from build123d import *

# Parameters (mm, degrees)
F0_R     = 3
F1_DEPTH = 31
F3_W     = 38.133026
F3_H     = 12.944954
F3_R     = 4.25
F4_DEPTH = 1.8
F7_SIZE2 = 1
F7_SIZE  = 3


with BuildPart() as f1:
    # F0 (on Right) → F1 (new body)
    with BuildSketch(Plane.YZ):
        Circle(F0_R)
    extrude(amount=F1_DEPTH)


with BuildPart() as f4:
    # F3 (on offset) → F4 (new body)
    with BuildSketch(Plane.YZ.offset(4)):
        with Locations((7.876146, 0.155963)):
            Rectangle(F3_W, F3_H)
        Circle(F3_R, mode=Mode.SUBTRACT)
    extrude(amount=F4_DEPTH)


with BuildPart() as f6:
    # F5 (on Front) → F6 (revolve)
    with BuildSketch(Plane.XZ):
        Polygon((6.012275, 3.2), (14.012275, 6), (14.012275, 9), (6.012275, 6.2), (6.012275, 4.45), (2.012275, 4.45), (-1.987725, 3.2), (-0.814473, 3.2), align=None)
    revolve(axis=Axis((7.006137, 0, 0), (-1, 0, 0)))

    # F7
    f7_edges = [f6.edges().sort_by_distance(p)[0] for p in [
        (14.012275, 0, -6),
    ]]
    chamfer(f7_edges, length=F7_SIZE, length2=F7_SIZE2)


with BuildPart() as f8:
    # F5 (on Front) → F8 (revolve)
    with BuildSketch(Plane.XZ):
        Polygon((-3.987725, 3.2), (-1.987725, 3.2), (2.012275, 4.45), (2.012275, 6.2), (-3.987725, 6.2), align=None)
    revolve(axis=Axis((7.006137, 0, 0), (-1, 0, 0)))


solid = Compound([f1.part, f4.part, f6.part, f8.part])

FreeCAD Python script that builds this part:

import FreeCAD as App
import Part
import Sketcher

V = App.Vector


def edges_at(feature, points):
    """Names of the edges that pass closest to the given points."""
    edges = feature.Shape.Edges
    near = lambda p: min(range(len(edges)), key=lambda i: edges[i].distToShape(Part.Vertex(*p))[0])
    return sorted({f"Edge{near(p) + 1}" for p in points})

doc = App.newDocument("Part")
body = doc.addObject("PartDesign::Body", "Body")

sketch1 = body.newObject("Sketcher::SketchObject", "Sketch")
sketch1.AttachmentSupport = (doc.getObject("YZ_Plane"), [""])
sketch1.MapMode = "FlatFace"
sketch1.addGeometry(Part.Circle(V(0, 0, 0), V(0, 0, 1), 3), False)
sketch1.addConstraint([
    Sketcher.Constraint("Coincident", 0, 3, -1, 1),
    Sketcher.Constraint("Diameter", 0, 6.0),
])
pad1 = body.newObject("PartDesign::Pad", "Pad")
pad1.Profile = sketch1
pad1.Length = 31
body2 = doc.addObject("PartDesign::Body", "Body001")

sketch2 = body2.newObject("Sketcher::SketchObject", "Sketch001")
sketch2.AttachmentSupport = (doc.getObject("YZ_Plane001"), [""])
sketch2.MapMode = "FlatFace"
sketch2.AttachmentOffset = App.Placement(V(0, 0, 4), App.Rotation())
sketch2.addGeometry([
    Part.LineSegment(V(-11.190367, 6.62844, 0), V(-11.190367, -6.316514, 0)),
    Part.LineSegment(V(-11.190367, -6.316514, 0), V(26.942659, -6.316514, 0)),
    Part.LineSegment(V(26.942659, -6.316514, 0), V(26.942659, 6.62844, 0)),
    Part.LineSegment(V(26.942659, 6.62844, 0), V(-11.190367, 6.62844, 0)),
    Part.Circle(V(0, 0, 0), V(0, 0, 1), 4.25),
], False)
sketch2.addConstraint([
    Sketcher.Constraint("Coincident", 0, 2, 1, 1),
    Sketcher.Constraint("Coincident", 1, 2, 2, 1),
    Sketcher.Constraint("Coincident", 2, 2, 3, 1),
    Sketcher.Constraint("Coincident", 3, 2, 0, 1),
    Sketcher.Constraint("Vertical", 0),
    Sketcher.Constraint("Horizontal", 1),
    Sketcher.Constraint("Vertical", 2),
    Sketcher.Constraint("Horizontal", 3),
    Sketcher.Constraint("Coincident", 4, 3, -1, 1),
    Sketcher.Constraint("Diameter", 4, 8.5),
    Sketcher.Constraint("DistanceX", 1, 1, 1, 2, 38.133026),
    Sketcher.Constraint("DistanceY", 0, 2, 0, 1, 12.944954),
    Sketcher.Constraint("DistanceX", -1, 1, 1, 2, 26.942659),
    Sketcher.Constraint("DistanceY", -1, 1, 2, 2, 6.62844),
])
pad2 = body2.newObject("PartDesign::Pad", "Pad001")
pad2.Profile = sketch2
pad2.Length = 1.8
body3 = doc.addObject("PartDesign::Body", "Body002")

sketch3 = body3.newObject("Sketcher::SketchObject", "Sketch002")
sketch3.AttachmentSupport = (doc.getObject("XZ_Plane002"), [""])
sketch3.MapMode = "FlatFace"
sketch3.addGeometry([
    Part.LineSegment(V(6.012275, 3.2, 0), V(14.012275, 6, 0)),
    Part.LineSegment(V(14.012275, 6, 0), V(14.012275, 9, 0)),
    Part.LineSegment(V(14.012275, 9, 0), V(6.012275, 6.2, 0)),
    Part.LineSegment(V(6.012275, 6.2, 0), V(6.012275, 4.45, 0)),
    Part.LineSegment(V(6.012275, 4.45, 0), V(2.012275, 4.45, 0)),
    Part.LineSegment(V(2.012275, 4.45, 0), V(-1.987725, 3.2, 0)),
    Part.LineSegment(V(-1.987725, 3.2, 0), V(6.012275, 3.2, 0)),
], False)
sketch3.addConstraint([
    Sketcher.Constraint("Coincident", 0, 2, 1, 1),
    Sketcher.Constraint("Coincident", 1, 2, 2, 1),
    Sketcher.Constraint("Coincident", 2, 2, 3, 1),
    Sketcher.Constraint("Coincident", 3, 2, 4, 1),
    Sketcher.Constraint("Coincident", 4, 2, 5, 1),
    Sketcher.Constraint("Coincident", 5, 2, 6, 1),
    Sketcher.Constraint("Coincident", 6, 2, 0, 1),
    Sketcher.Constraint("Vertical", 1),
    Sketcher.Constraint("Vertical", 3),
    Sketcher.Constraint("Horizontal", 4),
    Sketcher.Constraint("Horizontal", 6),
    Sketcher.Constraint("Parallel", 0, 2),
    Sketcher.Constraint("Vertical", 3, 2, 6, 2),
    Sketcher.Constraint("DistanceX", 4, 2, 4, 1, 4.0),
    Sketcher.Constraint("DistanceX", 6, 1, 6, 2, 8.0),
    Sketcher.Constraint("DistanceY", 1, 1, 1, 2, 3.0),
    Sketcher.Constraint("DistanceY", -1, 1, 0, 2, 6.0),
    Sketcher.Constraint("DistanceX", 2, 2, 0, 2, 8.0),
    Sketcher.Constraint("DistanceY", 3, 2, 3, 1, 1.75),
    Sketcher.Constraint("DistanceY", -1, 1, 2, 2, 6.2),
    Sketcher.Constraint("DistanceX", -1, 1, 0, 2, 14.012275),
])
revolution = body3.newObject("PartDesign::Revolution", "Revolution")
revolution.Profile = sketch3
revolution.ReferenceAxis = (sketch3, ["H_Axis"])
revolution.Angle = 360
doc.recompute()

chamfer = body3.newObject("PartDesign::Chamfer", "Chamfer")
chamfer.Base = (revolution, edges_at(revolution, [(14.012, 0, -6)]))
chamfer.ChamferType = "Two distances"
chamfer.Size = 3
chamfer.Size2 = 1
body4 = doc.addObject("PartDesign::Body", "Body003")

sketch4 = body4.newObject("Sketcher::SketchObject", "Sketch003")
sketch4.AttachmentSupport = (doc.getObject("XZ_Plane003"), [""])
sketch4.MapMode = "FlatFace"
sketch4.addGeometry([
    Part.LineSegment(V(-3.987725, 3.2, 0), V(-1.987725, 3.2, 0)),
    Part.LineSegment(V(-1.987725, 3.2, 0), V(2.012275, 4.45, 0)),
    Part.LineSegment(V(2.012275, 4.45, 0), V(2.012275, 6.2, 0)),
    Part.LineSegment(V(2.012275, 6.2, 0), V(-3.987725, 6.2, 0)),
    Part.LineSegment(V(-3.987725, 6.2, 0), V(-3.987725, 3.2, 0)),
], False)
sketch4.addConstraint([
    Sketcher.Constraint("Coincident", 0, 2, 1, 1),
    Sketcher.Constraint("Coincident", 1, 2, 2, 1),
    Sketcher.Constraint("Coincident", 2, 2, 3, 1),
    Sketcher.Constraint("Coincident", 3, 2, 4, 1),
    Sketcher.Constraint("Coincident", 4, 2, 0, 1),
    Sketcher.Constraint("Horizontal", 0),
    Sketcher.Constraint("Vertical", 2),
    Sketcher.Constraint("Horizontal", 3),
    Sketcher.Constraint("Vertical", 4),
    Sketcher.Constraint("DistanceX", 0, 1, 0, 2, 2.0),
    Sketcher.Constraint("DistanceX", 3, 2, 3, 1, 6.0),
    Sketcher.Constraint("DistanceY", 4, 2, 4, 1, 3.0),
    Sketcher.Constraint("DistanceY", 2, 1, 2, 2, 1.75),
    Sketcher.Constraint("DistanceY", -1, 1, 0, 2, 3.2),
    Sketcher.Constraint("DistanceX", 0, 2, -1, 1, 1.987725),
])
revolution2 = body4.newObject("PartDesign::Revolution", "Revolution001")
revolution2.Profile = sketch4
revolution2.ReferenceAxis = (sketch4, ["H_Axis"])
revolution2.Angle = 360

doc.recompute()
